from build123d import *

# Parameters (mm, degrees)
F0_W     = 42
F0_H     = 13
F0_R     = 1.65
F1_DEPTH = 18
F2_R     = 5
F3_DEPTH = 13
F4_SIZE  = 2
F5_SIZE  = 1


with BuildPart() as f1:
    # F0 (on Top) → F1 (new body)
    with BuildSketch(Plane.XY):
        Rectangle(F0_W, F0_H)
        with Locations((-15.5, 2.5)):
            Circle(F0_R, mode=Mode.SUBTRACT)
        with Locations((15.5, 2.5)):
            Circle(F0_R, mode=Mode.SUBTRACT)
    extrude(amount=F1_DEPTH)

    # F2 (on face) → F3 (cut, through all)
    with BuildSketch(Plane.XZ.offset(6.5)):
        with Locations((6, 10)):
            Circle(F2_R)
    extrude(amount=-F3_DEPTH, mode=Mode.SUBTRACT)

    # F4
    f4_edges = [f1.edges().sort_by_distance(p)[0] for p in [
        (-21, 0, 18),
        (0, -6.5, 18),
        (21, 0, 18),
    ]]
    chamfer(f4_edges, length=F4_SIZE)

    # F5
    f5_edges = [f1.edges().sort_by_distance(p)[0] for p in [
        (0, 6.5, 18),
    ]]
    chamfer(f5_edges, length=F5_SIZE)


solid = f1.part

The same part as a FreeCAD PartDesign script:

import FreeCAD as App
import Part
import Sketcher
from FreeCAD import Vector


def edges_at(feature, points):
    """Names of the edges that pass closest to the given points."""
    edges = feature.Shape.Edges
    near = lambda p: min(range(len(edges)), key=lambda i: edges[i].distToShape(Part.Vertex(*p))[0])
    return sorted({f"Edge{near(p) + 1}" for p in points})


def add_polygon(sketch, points):
    """Adds a closed chain of lines whose ends are joined by coincident constraints."""
    first, n = sketch.GeometryCount, len(points)
    for a, b in zip(points, points[1:] + points[:1]):
        sketch.addGeometry(Part.LineSegment(App.Vector(*a, 0), App.Vector(*b, 0)), False)
    for i in range(n):
        sketch.addConstraint(Sketcher.Constraint("Coincident", first + i, 2, first + (i + 1) % n, 1))

doc = App.newDocument("Part")
body = doc.addObject("PartDesign::Body", "Body")

# Sketch on XY plane
sketch1 = body.newObject("Sketcher::SketchObject", "Sketch")
sketch1.AttachmentSupport = (doc.getObject("XY_Plane"), [""])
sketch1.MapMode = "FlatFace"
add_polygon(sketch1, [(-21, 6.5), (-21, -6.5), (21, -6.5), (21, 6.5)])  # lines 0-3
sketch1.addGeometry(Part.Circle(Vector(-15.5, 2.5, 0), Vector(0, 0, 1), 1.6), False)  # 4
sketch1.addGeometry(Part.Circle(Vector(15.5, 2.5, 0), Vector(0, 0, 1), 1.6), False)  # 5
sketch1.addConstraint([
    Sketcher.Constraint("Vertical", 0),
    Sketcher.Constraint("Horizontal", 1),
    Sketcher.Constraint("Vertical", 2),
    Sketcher.Constraint("Horizontal", 3),
    Sketcher.Constraint("Equal", 4, 5),
    Sketcher.Constraint("Symmetric", 0, 2, 2, 2, -1, 1),
    Sketcher.Constraint("Symmetric", 4, 3, 5, 3, -2),
    Sketcher.Constraint("Diameter", 4, 3.3),
    Sketcher.Constraint("DistanceX", 1, 1, 1, 2, 42.0),
    Sketcher.Constraint("DistanceY", 0, 2, 0, 1, 13.0),
    Sketcher.Constraint("DistanceX", 4, 3, 5, 3, 31.0),
    Sketcher.Constraint("DistanceY", 0, 2, 4, 3, 9.0),
])
pad1 = body.newObject("PartDesign::Pad", "Pad")
pad1.Profile = sketch1
pad1.Length = 18

# Sketch on XZ plane
sketch2 = body.newObject("Sketcher::SketchObject", "Sketch001")
sketch2.AttachmentSupport = (doc.getObject("XZ_Plane"), [""])
sketch2.MapMode = "FlatFace"
sketch2.AttachmentOffset = App.Placement(Vector(0, 0, 6.5), App.Rotation())
sketch2.addGeometry(Part.Circle(Vector(6, 10, 0), Vector(0, 0, 1), 5), False)
sketch2.addConstraint([
    Sketcher.Constraint("Diameter", 0, 10.0),
    Sketcher.Constraint("DistanceX", -1, 1, 0, 3, 6.0),
    Sketcher.Constraint("DistanceY", -1, 1, 0, 3, 10.0),
])
pocket1 = body.newObject("PartDesign::Pocket", "Pocket")
pocket1.Profile = sketch2
pocket1.Type = "ThroughAll"
doc.recompute()

chamfer = body.newObject("PartDesign::Chamfer", "Chamfer")
chamfer.Base = (pocket1, edges_at(pocket1, [(-21, 0, 18), (0, -6.5, 18), (21, 0, 18)]))
chamfer.Size = 2
doc.recompute()

chamfer2 = body.newObject("PartDesign::Chamfer", "Chamfer001")
chamfer2.Base = (chamfer, edges_at(chamfer, [(0, 6.5, 18)]))
chamfer2.Size = 1

doc.recompute()
